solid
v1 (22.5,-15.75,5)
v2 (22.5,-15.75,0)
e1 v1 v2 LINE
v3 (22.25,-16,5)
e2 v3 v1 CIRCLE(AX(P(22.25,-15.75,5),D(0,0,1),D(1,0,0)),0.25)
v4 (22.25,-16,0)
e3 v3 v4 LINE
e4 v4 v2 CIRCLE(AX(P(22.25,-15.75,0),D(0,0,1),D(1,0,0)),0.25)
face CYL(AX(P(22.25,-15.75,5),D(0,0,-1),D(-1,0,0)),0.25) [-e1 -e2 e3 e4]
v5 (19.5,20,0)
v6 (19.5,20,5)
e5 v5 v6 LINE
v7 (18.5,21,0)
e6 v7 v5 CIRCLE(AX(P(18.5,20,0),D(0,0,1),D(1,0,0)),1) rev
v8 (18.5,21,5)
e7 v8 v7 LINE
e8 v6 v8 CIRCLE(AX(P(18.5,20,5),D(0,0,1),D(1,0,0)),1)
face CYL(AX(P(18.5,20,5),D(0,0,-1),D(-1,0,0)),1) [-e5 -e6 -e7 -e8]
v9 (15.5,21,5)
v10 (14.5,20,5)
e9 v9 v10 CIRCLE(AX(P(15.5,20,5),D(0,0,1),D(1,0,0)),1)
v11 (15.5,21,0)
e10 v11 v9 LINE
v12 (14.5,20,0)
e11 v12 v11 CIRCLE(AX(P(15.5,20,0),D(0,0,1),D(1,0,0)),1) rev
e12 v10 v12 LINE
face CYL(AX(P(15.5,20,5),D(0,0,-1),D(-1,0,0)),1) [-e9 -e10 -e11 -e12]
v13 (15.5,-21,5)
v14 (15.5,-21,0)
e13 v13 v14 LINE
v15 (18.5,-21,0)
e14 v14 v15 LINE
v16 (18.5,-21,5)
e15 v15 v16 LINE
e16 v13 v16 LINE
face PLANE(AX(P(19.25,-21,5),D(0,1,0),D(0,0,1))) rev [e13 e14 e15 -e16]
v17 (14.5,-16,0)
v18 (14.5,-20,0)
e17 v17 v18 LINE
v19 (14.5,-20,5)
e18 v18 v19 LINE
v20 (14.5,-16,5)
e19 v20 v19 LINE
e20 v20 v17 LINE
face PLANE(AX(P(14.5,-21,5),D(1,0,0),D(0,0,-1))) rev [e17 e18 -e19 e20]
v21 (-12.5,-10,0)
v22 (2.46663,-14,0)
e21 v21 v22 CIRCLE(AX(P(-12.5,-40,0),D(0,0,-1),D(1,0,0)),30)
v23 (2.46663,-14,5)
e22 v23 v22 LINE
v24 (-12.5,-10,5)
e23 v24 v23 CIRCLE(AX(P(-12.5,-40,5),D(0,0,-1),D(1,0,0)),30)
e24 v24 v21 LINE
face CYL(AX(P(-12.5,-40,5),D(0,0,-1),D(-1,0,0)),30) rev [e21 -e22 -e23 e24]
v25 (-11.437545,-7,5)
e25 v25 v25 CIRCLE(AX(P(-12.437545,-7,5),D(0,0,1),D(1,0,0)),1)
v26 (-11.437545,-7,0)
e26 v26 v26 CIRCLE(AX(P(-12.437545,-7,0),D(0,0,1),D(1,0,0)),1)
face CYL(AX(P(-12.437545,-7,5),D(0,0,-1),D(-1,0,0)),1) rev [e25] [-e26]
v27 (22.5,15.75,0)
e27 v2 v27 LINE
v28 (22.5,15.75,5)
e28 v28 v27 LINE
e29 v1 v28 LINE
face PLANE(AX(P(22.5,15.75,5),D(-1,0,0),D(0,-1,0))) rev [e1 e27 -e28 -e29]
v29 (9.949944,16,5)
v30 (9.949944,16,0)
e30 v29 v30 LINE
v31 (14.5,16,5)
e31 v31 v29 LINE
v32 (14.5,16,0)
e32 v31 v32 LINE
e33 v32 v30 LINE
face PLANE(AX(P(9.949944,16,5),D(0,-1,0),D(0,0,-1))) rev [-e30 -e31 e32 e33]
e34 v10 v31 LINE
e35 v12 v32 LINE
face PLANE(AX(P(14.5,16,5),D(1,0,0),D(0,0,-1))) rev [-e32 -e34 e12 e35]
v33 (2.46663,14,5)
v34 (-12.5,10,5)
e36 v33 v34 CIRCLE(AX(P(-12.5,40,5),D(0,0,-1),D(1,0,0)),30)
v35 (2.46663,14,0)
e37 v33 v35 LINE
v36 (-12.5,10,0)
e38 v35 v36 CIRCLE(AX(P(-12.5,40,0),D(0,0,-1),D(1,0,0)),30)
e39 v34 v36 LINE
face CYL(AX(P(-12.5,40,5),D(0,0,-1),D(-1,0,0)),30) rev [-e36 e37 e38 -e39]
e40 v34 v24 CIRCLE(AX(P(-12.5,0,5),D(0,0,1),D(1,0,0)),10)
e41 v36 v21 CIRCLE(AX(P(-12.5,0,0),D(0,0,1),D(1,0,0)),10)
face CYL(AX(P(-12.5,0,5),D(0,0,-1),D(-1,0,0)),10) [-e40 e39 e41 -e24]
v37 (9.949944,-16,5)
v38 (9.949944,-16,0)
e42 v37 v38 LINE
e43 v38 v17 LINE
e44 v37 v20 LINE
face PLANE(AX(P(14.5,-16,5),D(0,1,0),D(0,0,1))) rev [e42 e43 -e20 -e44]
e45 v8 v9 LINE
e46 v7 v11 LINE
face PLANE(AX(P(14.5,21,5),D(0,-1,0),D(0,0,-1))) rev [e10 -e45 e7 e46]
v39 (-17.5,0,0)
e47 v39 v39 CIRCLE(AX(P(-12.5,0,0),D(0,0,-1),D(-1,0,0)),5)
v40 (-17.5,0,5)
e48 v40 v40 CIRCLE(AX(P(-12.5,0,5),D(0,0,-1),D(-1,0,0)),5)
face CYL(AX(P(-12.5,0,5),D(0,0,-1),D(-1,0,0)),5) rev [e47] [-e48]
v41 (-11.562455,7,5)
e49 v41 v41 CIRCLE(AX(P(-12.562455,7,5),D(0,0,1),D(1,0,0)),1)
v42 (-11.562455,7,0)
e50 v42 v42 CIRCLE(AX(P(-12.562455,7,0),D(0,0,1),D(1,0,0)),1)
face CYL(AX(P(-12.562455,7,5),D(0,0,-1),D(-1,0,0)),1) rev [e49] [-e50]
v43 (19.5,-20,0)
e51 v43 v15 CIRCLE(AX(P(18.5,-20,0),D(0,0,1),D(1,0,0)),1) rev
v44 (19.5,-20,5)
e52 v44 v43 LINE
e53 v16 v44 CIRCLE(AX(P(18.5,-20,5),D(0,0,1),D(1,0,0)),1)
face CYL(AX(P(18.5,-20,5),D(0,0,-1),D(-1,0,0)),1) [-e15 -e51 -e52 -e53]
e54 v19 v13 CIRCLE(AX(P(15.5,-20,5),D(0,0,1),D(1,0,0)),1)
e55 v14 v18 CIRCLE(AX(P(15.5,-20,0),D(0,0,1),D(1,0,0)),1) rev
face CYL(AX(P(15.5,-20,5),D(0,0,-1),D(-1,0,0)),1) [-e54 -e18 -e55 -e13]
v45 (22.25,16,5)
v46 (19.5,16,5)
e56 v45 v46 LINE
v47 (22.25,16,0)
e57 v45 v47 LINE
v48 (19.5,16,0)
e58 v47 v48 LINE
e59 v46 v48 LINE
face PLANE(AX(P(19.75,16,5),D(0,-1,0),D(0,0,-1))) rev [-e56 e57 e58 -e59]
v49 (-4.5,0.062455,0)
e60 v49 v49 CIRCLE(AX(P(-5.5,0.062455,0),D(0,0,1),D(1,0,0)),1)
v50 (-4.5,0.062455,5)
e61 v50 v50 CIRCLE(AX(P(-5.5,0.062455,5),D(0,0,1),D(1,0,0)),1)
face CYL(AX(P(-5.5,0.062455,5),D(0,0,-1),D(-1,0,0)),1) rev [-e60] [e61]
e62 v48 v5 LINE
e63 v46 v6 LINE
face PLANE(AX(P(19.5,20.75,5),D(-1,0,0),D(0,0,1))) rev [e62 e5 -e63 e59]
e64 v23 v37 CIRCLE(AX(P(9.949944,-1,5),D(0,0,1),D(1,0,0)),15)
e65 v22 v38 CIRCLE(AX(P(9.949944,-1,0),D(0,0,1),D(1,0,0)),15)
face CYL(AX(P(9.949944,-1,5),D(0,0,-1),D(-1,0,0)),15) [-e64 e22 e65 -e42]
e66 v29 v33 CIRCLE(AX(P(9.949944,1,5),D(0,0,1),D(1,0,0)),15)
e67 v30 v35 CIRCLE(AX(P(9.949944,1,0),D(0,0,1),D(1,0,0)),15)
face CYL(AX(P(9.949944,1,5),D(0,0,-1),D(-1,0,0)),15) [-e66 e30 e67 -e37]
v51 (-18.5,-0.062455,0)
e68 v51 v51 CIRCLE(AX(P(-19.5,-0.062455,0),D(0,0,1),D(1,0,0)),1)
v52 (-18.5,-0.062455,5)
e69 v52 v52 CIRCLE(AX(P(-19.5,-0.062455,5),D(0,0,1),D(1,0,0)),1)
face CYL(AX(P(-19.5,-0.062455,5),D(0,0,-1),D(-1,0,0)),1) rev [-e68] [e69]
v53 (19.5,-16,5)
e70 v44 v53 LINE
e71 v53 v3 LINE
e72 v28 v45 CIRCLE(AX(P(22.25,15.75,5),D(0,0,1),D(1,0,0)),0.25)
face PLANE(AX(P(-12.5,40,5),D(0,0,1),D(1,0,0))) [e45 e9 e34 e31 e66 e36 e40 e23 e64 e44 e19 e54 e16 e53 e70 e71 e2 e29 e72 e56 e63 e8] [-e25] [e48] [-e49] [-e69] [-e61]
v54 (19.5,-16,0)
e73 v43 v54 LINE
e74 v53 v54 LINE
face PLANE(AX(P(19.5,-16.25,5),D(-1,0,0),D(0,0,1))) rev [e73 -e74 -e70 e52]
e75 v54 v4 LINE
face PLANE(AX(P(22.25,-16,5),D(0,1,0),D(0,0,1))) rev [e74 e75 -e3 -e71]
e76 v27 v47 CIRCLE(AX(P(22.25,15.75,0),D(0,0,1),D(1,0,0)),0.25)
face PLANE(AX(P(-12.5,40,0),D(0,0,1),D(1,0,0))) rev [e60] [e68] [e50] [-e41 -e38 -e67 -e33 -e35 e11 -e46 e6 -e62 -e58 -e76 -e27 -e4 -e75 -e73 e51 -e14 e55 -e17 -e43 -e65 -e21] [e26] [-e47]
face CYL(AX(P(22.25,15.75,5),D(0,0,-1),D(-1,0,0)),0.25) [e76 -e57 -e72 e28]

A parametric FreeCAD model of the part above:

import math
import FreeCAD as App
import Part
import Sketcher

V = App.Vector


def edges_at(feature, points):
    """Names of the edges that pass closest to the given points."""
    edges = feature.Shape.Edges
    near = lambda p: min(range(len(edges)), key=lambda i: edges[i].distToShape(Part.Vertex(*p))[0])
    return sorted({f"Edge{near(p) + 1}" for p in points})


def add_polygon(sketch, points):
    """Adds a closed chain of lines whose ends are joined by coincident constraints."""
    first, n = sketch.GeometryCount, len(points)
    for a, b in zip(points, points[1:] + points[:1]):
        sketch.addGeometry(Part.LineSegment(App.Vector(*a, 0), App.Vector(*b, 0)), False)
    for i in range(n):
        sketch.addConstraint(Sketcher.Constraint("Coincident", first + i, 2, first + (i + 1) % n, 1))

doc = App.newDocument("Part")
body = doc.addObject("PartDesign::Body", "Body")

# Sketch on XY plane
sketch1 = body.newObject("Sketcher::SketchObject", "Sketch")
sketch1.AttachmentSupport = (doc.getObject("XY_Plane"), [""])
sketch1.MapMode = "FlatFace"
sketch1.addGeometry(Part.LineSegment(V(14.5, -21, 0), V(19.25, -21, 0)), False)
sketch1.addGeometry(Part.ArcOfCircle(Part.Circle(V(19.25, -20.75, 0), V(0, 0, 1), 0.25), math.radians(-90), math.radians(0)), False)
sketch1.addGeometry(Part.LineSegment(V(19.5, -20.75, 0), V(19.5, -16.25, 0)), False)
sketch1.addGeometry(Part.ArcOfCircle(Part.Circle(V(19.75, -16.25, 0), V(0, 0, 1), 0.25), math.radians(90), math.radians(180)), False)
sketch1.addGeometry(Part.LineSegment(V(19.75, -16, 0), V(22.25, -16, 0)), False)
sketch1.addGeometry(Part.ArcOfCircle(Part.Circle(V(22.25, -15.75, 0), V(0, 0, 1), 0.25), math.radians(-90), math.radians(0)), False)
sketch1.addGeometry(Part.LineSegment(V(22.5, -15.75, 0), V(22.5, 15.75, 0)), False)
sketch1.addGeometry(Part.ArcOfCircle(Part.Circle(V(22.25, 15.75, 0), V(0, 0, 1), 0.25), math.radians(0), math.radians(90)), False)
sketch1.addGeometry(Part.LineSegment(V(22.25, 16, 0), V(19.75, 16, 0)), False)
sketch1.addGeometry(Part.ArcOfCircle(Part.Circle(V(19.75, 16.25, 0), V(0, 0, 1), 0.25), math.radians(-180), math.radians(-90)), False)
sketch1.addGeometry(Part.LineSegment(V(19.5, 16.25, 0), V(19.5, 20.75, 0)), False)
sketch1.addGeometry(Part.ArcOfCircle(Part.Circle(V(19.25, 20.75, 0), V(0, 0, 1), 0.25), math.radians(0), math.radians(90)), False)
sketch1.addGeometry(Part.LineSegment(V(19.25, 21, 0), V(14.5, 21, 0)), False)
sketch1.addGeometry(Part.LineSegment(V(14.5, 21, 0), V(14.5, 16, 0)), False)
sketch1.addGeometry(Part.LineSegment(V(14.5, 16, 0), V(9.95, 16, 0)), False)
sketch1.addGeometry(Part.ArcOfCircle(Part.Circle(V(9.95, 1, 0), V(0, 0, 1), 15), math.radians(90), math.radians(120)), False)
sketch1.addGeometry(Part.ArcOfCircle(Part.Circle(V(-12.5, 40, 0), V(0, 0, 1), 30), math.radians(-90), math.radians(-60)), False)
sketch1.addGeometry(Part.ArcOfCircle(Part.Circle(V(-12.5, 0, 0), V(0, 0, 1), 10), math.radians(90), math.radians(270)), False)
sketch1.addGeometry(Part.ArcOfCircle(Part.Circle(V(-12.5, -40, 0), V(0, 0, 1), 30), math.radians(60), math.radians(90)), False)
sketch1.addGeometry(Part.ArcOfCircle(Part.Circle(V(9.95, -1, 0), V(0, 0, 1), 15), math.radians(-120), math.radians(-90)), False)
sketch1.addGeometry(Part.LineSegment(V(9.95, -16, 0), V(14.5, -16, 0)), False)
sketch1.addGeometry(Part.LineSegment(V(14.5, -16, 0), V(14.5, -21, 0)), False)
sketch1.addGeometry(Part.Circle(V(-12.44, -7, 0), V(0, 0, 1), 1), False)
sketch1.addGeometry(Part.Circle(V(-19.5, -0.06, 0), V(0, 0, 1), 1), False)
sketch1.addGeometry(Part.Circle(V(-5.5, 0.06, 0), V(0, 0, 1), 1), False)
sketch1.addGeometry(Part.Circle(V(-12.5, 0, 0), V(0, 0, 1), 1.5), False)
sketch1.addGeometry(Part.Circle(V(-12.56, 7, 0), V(0, 0, 1), 1), False)
sketch1.addConstraint(Sketcher.Constraint("Tangent", 0, 2, 1, 1))
sketch1.addConstraint(Sketcher.Constraint("Tangent", 1, 2, 2, 1))
sketch1.addConstraint(Sketcher.Constraint("Tangent", 2, 2, 3, 2))
sketch1.addConstraint(Sketcher.Constraint("Tangent", 3, 1, 4, 1))
sketch1.addConstraint(Sketcher.Constraint("Tangent", 4, 2, 5, 1))
sketch1.addConstraint(Sketcher.Constraint("Tangent", 5, 2, 6, 1))
sketch1.addConstraint(Sketcher.Constraint("Tangent", 6, 2, 7, 1))
sketch1.addConstraint(Sketcher.Constraint("Tangent", 7, 2, 8, 1))
sketch1.addConstraint(Sketcher.Constraint("Tangent", 8, 2, 9, 2))
sketch1.addConstraint(Sketcher.Constraint("Tangent", 9, 1, 10, 1))
sketch1.addConstraint(Sketcher.Constraint("Tangent", 10, 2, 11, 1))
sketch1.addConstraint(Sketcher.Constraint("Tangent", 11, 2, 12, 1))
sketch1.addConstraint(Sketcher.Constraint("Coincident", 12, 2, 13, 1))
sketch1.addConstraint(Sketcher.Constraint("Coincident", 13, 2, 14, 1))
sketch1.addConstraint(Sketcher.Constraint("Tangent", 14, 2, 15, 1))
sketch1.addConstraint(Sketcher.Constraint("Tangent", 15, 2, 16, 2))
sketch1.addConstraint(Sketcher.Constraint("Tangent", 16, 1, 17, 1))
sketch1.addConstraint(Sketcher.Constraint("Tangent", 17, 2, 18, 2))
sketch1.addConstraint(Sketcher.Constraint("Tangent", 18, 1, 19, 1))
sketch1.addConstraint(Sketcher.Constraint("Tangent", 19, 2, 20, 1))
sketch1.addConstraint(Sketcher.Constraint("Coincident", 20, 2, 21, 1))
sketch1.addConstraint(Sketcher.Constraint("Coincident", 21, 2, 0, 1))
sketch1.addConstraint(Sketcher.Constraint("Horizontal", 0))
sketch1.addConstraint(Sketcher.Constraint("Vertical", 2))
sketch1.addConstraint(Sketcher.Constraint("Horizontal", 4))
sketch1.addConstraint(Sketcher.Constraint("Vertical", 6))
sketch1.addConstraint(Sketcher.Constraint("Horizontal", 8))
sketch1.addConstraint(Sketcher.Constraint("Vertical", 10))
sketch1.addConstraint(Sketcher.Constraint("Horizontal", 12))
sketch1.addConstraint(Sketcher.Constraint("Vertical", 13))
sketch1.addConstraint(Sketcher.Constraint("Horizontal", 14))
sketch1.addConstraint(Sketcher.Constraint("Horizontal", 20))
sketch1.addConstraint(Sketcher.Constraint("Vertical", 21))
sketch1.addConstraint(Sketcher.Constraint("Coincident", 25, 3, 17, 3))
sketch1.addConstraint(Sketcher.Constraint("Equal", 1, 3))
sketch1.addConstraint(Sketcher.Constraint("Equal", 3, 5))
sketch1.addConstraint(Sketcher.Constraint("Equal", 5, 7))
sketch1.addConstraint(Sketcher.Constraint("Equal", 7, 9))
sketch1.addConstraint(Sketcher.Constraint("Equal", 9, 11))
sketch1.addConstraint(Sketcher.Constraint("Equal", 16, 18))
sketch1.addConstraint(Sketcher.Constraint("Equal", 15, 19))
sketch1.addConstraint(Sketcher.Constraint("Equal", 22, 23))
sketch1.addConstraint(Sketcher.Constraint("Equal", 23, 24))
sketch1.addConstraint(Sketcher.Constraint("Equal", 24, 26))
sketch1.addConstraint(Sketcher.Constraint("Symmetric", 3, 3, 9, 3, -1))
sketch1.addConstraint(Sketcher.Constraint("Symmetric", 16, 3, 18, 3, -1))
sketch1.addConstraint(Sketcher.Constraint("Symmetric", 13, 2, 20, 2, -1))
sketch1.addConstraint(Sketcher.Constraint("Horizontal", 8, 2, 13, 2))
sketch1.addConstraint(Sketcher.Constraint("Vertical", 16, 3, 17, 3))
sketch1.addConstraint(Sketcher.Constraint("Equal", 2, 10))
sketch1.addConstraint(Sketcher.Constraint("Diameter", 22, 2.0))
sketch1.addConstraint(Sketcher.Constraint("Diameter", 25, 3.0))
sketch1.addConstraint(Sketcher.Constraint("Radius", 15, 15.0))
sketch1.addConstraint(Sketcher.Constraint("Radius", 16, 30.0))
sketch1.addConstraint(Sketcher.Constraint("Radius", 17, 10.0))
sketch1.addConstraint(Sketcher.Constraint("DistanceY", 13, 2, 13, 1, 5.0))
sketch1.addConstraint(Sketcher.Constraint("Radius", 1, 0.25))
sketch1.addConstraint(Sketcher.Constraint("DistanceX", 4, 1, 4, 2, 2.5))
sketch1.addConstraint(Sketcher.Constraint("DistanceY", 6, 1, 6, 2, 31.5))
sketch1.addConstraint(Sketcher.Constraint("DistanceY", 22, 3, -1, 1, 7.0))
sketch1.addConstraint(Sketcher.Constraint("DistanceY", -1, 1, 26, 3, 7.0))
sketch1.addConstraint(Sketcher.Constraint("DistanceX", 23, 3, 17, 3, 7.0))
sketch1.addConstraint(Sketcher.Constraint("DistanceX", 17, 3, 24, 3, 7.0))
sketch1.addConstraint(Sketcher.Constraint("DistanceX", 12, 2, 10, 2, 5.0))
sketch1.addConstraint(Sketcher.Constraint("DistanceX", 16, 3, -1, 1, 12.5))
sketch1.addConstraint(Sketcher.Constraint("DistanceX", -1, 1, 1, 2, 19.5))
sketch1.addConstraint(Sketcher.Constraint("DistanceX", 22, 3, 19, 3, 22.38749))
sketch1.addConstraint(Sketcher.Constraint("DistanceY", 23, 3, 24, 3, 0.124909))
sketch1.addConstraint(Sketcher.Constraint("DistanceX", 26, 3, 22, 3, 0.124909))
sketch1.addConstraint(Sketcher.Constraint("DistanceY", 23, 3, -1, 1, 0.062455))
pad1 = body.newObject("PartDesign::Pad", "Pad")
pad1.Profile = sketch1
pad1.Length = 5

# Sketch on XY plane
sketch2 = body.newObject("Sketcher::SketchObject", "Sketch001")
sketch2.AttachmentSupport = (doc.getObject("XY_Plane"), [""])
sketch2.MapMode = "FlatFace"
sketch2.addGeometry(Part.Circle(V(-12, 0, 0), V(0, 0, 1), 5), False)
sketch2.addConstraint(Sketcher.Constraint("PointOnObject", 0, 3, -1))
sketch2.addConstraint(Sketcher.Constraint("Diameter", 0, 10.0))
sketch2.addConstraint(Sketcher.Constraint("DistanceX", 0, 3, -1, 1, 12.5))
pocket1 = body.newObject("PartDesign::Pocket", "Pocket")
pocket1.Profile = sketch2
pocket1.Length = 5
pocket1.Reversed = True

# Sketch on XY plane
sketch3 = body.newObject("Sketcher::SketchObject", "Sketch002")
sketch3.AttachmentSupport = (doc.getObject("XY_Plane"), [""])
sketch3.MapMode = "FlatFace"
add_polygon(sketch3, [(20.9, 22.5), (20.9, 16), (19.5, 16), (19.5, 22.5)])  # lines 0-3
add_polygon(sketch3, [(22.8, -16), (22.8, -22), (19.5, -22), (19.5, -16)])  # lines 4-7
sketch3.addConstraint(Sketcher.Constraint("Vertical", 0))
sketch3.addConstraint(Sketcher.Constraint("Horizontal", 1))
sketch3.addConstraint(Sketcher.Constraint("Vertical", 2))
sketch3.addConstraint(Sketcher.Constraint("Horizontal", 3))
sketch3.addConstraint(Sketcher.Constraint("Vertical", 4))
sketch3.addConstraint(Sketcher.Constraint("Horizontal", 5))
sketch3.addConstraint(Sketcher.Constraint("Vertical", 6))
sketch3.addConstraint(Sketcher.Constraint("Horizontal", 7))
sketch3.addConstraint(Sketcher.Constraint("Symmetric", 1, 2, 6, 2, -1))
sketch3.addConstraint(Sketcher.Constraint("DistanceY", -1, 1, 0, 2, 16.0))
sketch3.addConstraint(Sketcher.Constraint("DistanceX", -1, 1, 1, 2, 19.5))
sketch3.addConstraint(Sketcher.Constraint("DistanceX", 1, 2, 1, 1, 1.435581))
sketch3.addConstraint(Sketcher.Constraint("DistanceY", 4, 2, 4, 1, 6.030331))
sketch3.addConstraint(Sketcher.Constraint("DistanceX", 5, 2, 5, 1, 3.269457))
sketch3.addConstraint(Sketcher.Constraint("DistanceY", 0, 2, 0, 1, 6.545275))
pocket2 = body.newObject("PartDesign::Pocket", "Pocket001")
pocket2.Profile = sketch3
pocket2.Length = 5
pocket2.Reversed = True

# Sketch on XY plane
sketch4 = body.newObject("Sketcher::SketchObject", "Sketch003")
sketch4.AttachmentSupport = (doc.getObject("XY_Plane"), [""])
sketch4.MapMode = "FlatFace"
add_polygon(sketch4, [(19.5, 21), (19.5, -21), (15.8, -21), (15.8, 21)])  # lines 0-3
sketch4.addConstraint(Sketcher.Constraint("Vertical", 0))
sketch4.addConstraint(Sketcher.Constraint("Horizontal", 1))
sketch4.addConstraint(Sketcher.Constraint("Vertical", 2))
sketch4.addConstraint(Sketcher.Constraint("Horizontal", 3))
sketch4.addConstraint(Sketcher.Constraint("DistanceY", 0, 2, 0, 1, 42.0))
sketch4.addConstraint(Sketcher.Constraint("DistanceY", 0, 2, -1, 1, 21.0))
sketch4.addConstraint(Sketcher.Constraint("DistanceX", -1, 1, 0, 2, 19.5))
sketch4.addConstraint(Sketcher.Constraint("DistanceX", 1, 2, 1, 1, 3.749897))
pad2 = body.newObject("PartDesign::Pad", "Pad001")
pad2.Profile = sketch4
pad2.Length = 5
doc.recompute()

fillet = body.newObject("PartDesign::Fillet", "Fillet")
fillet.Base = (pad2, edges_at(pad2, [
    (19.5, -21, 2.5),
    (19.5, 21, 2.5),
    (14.5, 21, 2.5),
    (14.5, -21, 2.5),
]))
fillet.Radius = 1

doc.recompute()
